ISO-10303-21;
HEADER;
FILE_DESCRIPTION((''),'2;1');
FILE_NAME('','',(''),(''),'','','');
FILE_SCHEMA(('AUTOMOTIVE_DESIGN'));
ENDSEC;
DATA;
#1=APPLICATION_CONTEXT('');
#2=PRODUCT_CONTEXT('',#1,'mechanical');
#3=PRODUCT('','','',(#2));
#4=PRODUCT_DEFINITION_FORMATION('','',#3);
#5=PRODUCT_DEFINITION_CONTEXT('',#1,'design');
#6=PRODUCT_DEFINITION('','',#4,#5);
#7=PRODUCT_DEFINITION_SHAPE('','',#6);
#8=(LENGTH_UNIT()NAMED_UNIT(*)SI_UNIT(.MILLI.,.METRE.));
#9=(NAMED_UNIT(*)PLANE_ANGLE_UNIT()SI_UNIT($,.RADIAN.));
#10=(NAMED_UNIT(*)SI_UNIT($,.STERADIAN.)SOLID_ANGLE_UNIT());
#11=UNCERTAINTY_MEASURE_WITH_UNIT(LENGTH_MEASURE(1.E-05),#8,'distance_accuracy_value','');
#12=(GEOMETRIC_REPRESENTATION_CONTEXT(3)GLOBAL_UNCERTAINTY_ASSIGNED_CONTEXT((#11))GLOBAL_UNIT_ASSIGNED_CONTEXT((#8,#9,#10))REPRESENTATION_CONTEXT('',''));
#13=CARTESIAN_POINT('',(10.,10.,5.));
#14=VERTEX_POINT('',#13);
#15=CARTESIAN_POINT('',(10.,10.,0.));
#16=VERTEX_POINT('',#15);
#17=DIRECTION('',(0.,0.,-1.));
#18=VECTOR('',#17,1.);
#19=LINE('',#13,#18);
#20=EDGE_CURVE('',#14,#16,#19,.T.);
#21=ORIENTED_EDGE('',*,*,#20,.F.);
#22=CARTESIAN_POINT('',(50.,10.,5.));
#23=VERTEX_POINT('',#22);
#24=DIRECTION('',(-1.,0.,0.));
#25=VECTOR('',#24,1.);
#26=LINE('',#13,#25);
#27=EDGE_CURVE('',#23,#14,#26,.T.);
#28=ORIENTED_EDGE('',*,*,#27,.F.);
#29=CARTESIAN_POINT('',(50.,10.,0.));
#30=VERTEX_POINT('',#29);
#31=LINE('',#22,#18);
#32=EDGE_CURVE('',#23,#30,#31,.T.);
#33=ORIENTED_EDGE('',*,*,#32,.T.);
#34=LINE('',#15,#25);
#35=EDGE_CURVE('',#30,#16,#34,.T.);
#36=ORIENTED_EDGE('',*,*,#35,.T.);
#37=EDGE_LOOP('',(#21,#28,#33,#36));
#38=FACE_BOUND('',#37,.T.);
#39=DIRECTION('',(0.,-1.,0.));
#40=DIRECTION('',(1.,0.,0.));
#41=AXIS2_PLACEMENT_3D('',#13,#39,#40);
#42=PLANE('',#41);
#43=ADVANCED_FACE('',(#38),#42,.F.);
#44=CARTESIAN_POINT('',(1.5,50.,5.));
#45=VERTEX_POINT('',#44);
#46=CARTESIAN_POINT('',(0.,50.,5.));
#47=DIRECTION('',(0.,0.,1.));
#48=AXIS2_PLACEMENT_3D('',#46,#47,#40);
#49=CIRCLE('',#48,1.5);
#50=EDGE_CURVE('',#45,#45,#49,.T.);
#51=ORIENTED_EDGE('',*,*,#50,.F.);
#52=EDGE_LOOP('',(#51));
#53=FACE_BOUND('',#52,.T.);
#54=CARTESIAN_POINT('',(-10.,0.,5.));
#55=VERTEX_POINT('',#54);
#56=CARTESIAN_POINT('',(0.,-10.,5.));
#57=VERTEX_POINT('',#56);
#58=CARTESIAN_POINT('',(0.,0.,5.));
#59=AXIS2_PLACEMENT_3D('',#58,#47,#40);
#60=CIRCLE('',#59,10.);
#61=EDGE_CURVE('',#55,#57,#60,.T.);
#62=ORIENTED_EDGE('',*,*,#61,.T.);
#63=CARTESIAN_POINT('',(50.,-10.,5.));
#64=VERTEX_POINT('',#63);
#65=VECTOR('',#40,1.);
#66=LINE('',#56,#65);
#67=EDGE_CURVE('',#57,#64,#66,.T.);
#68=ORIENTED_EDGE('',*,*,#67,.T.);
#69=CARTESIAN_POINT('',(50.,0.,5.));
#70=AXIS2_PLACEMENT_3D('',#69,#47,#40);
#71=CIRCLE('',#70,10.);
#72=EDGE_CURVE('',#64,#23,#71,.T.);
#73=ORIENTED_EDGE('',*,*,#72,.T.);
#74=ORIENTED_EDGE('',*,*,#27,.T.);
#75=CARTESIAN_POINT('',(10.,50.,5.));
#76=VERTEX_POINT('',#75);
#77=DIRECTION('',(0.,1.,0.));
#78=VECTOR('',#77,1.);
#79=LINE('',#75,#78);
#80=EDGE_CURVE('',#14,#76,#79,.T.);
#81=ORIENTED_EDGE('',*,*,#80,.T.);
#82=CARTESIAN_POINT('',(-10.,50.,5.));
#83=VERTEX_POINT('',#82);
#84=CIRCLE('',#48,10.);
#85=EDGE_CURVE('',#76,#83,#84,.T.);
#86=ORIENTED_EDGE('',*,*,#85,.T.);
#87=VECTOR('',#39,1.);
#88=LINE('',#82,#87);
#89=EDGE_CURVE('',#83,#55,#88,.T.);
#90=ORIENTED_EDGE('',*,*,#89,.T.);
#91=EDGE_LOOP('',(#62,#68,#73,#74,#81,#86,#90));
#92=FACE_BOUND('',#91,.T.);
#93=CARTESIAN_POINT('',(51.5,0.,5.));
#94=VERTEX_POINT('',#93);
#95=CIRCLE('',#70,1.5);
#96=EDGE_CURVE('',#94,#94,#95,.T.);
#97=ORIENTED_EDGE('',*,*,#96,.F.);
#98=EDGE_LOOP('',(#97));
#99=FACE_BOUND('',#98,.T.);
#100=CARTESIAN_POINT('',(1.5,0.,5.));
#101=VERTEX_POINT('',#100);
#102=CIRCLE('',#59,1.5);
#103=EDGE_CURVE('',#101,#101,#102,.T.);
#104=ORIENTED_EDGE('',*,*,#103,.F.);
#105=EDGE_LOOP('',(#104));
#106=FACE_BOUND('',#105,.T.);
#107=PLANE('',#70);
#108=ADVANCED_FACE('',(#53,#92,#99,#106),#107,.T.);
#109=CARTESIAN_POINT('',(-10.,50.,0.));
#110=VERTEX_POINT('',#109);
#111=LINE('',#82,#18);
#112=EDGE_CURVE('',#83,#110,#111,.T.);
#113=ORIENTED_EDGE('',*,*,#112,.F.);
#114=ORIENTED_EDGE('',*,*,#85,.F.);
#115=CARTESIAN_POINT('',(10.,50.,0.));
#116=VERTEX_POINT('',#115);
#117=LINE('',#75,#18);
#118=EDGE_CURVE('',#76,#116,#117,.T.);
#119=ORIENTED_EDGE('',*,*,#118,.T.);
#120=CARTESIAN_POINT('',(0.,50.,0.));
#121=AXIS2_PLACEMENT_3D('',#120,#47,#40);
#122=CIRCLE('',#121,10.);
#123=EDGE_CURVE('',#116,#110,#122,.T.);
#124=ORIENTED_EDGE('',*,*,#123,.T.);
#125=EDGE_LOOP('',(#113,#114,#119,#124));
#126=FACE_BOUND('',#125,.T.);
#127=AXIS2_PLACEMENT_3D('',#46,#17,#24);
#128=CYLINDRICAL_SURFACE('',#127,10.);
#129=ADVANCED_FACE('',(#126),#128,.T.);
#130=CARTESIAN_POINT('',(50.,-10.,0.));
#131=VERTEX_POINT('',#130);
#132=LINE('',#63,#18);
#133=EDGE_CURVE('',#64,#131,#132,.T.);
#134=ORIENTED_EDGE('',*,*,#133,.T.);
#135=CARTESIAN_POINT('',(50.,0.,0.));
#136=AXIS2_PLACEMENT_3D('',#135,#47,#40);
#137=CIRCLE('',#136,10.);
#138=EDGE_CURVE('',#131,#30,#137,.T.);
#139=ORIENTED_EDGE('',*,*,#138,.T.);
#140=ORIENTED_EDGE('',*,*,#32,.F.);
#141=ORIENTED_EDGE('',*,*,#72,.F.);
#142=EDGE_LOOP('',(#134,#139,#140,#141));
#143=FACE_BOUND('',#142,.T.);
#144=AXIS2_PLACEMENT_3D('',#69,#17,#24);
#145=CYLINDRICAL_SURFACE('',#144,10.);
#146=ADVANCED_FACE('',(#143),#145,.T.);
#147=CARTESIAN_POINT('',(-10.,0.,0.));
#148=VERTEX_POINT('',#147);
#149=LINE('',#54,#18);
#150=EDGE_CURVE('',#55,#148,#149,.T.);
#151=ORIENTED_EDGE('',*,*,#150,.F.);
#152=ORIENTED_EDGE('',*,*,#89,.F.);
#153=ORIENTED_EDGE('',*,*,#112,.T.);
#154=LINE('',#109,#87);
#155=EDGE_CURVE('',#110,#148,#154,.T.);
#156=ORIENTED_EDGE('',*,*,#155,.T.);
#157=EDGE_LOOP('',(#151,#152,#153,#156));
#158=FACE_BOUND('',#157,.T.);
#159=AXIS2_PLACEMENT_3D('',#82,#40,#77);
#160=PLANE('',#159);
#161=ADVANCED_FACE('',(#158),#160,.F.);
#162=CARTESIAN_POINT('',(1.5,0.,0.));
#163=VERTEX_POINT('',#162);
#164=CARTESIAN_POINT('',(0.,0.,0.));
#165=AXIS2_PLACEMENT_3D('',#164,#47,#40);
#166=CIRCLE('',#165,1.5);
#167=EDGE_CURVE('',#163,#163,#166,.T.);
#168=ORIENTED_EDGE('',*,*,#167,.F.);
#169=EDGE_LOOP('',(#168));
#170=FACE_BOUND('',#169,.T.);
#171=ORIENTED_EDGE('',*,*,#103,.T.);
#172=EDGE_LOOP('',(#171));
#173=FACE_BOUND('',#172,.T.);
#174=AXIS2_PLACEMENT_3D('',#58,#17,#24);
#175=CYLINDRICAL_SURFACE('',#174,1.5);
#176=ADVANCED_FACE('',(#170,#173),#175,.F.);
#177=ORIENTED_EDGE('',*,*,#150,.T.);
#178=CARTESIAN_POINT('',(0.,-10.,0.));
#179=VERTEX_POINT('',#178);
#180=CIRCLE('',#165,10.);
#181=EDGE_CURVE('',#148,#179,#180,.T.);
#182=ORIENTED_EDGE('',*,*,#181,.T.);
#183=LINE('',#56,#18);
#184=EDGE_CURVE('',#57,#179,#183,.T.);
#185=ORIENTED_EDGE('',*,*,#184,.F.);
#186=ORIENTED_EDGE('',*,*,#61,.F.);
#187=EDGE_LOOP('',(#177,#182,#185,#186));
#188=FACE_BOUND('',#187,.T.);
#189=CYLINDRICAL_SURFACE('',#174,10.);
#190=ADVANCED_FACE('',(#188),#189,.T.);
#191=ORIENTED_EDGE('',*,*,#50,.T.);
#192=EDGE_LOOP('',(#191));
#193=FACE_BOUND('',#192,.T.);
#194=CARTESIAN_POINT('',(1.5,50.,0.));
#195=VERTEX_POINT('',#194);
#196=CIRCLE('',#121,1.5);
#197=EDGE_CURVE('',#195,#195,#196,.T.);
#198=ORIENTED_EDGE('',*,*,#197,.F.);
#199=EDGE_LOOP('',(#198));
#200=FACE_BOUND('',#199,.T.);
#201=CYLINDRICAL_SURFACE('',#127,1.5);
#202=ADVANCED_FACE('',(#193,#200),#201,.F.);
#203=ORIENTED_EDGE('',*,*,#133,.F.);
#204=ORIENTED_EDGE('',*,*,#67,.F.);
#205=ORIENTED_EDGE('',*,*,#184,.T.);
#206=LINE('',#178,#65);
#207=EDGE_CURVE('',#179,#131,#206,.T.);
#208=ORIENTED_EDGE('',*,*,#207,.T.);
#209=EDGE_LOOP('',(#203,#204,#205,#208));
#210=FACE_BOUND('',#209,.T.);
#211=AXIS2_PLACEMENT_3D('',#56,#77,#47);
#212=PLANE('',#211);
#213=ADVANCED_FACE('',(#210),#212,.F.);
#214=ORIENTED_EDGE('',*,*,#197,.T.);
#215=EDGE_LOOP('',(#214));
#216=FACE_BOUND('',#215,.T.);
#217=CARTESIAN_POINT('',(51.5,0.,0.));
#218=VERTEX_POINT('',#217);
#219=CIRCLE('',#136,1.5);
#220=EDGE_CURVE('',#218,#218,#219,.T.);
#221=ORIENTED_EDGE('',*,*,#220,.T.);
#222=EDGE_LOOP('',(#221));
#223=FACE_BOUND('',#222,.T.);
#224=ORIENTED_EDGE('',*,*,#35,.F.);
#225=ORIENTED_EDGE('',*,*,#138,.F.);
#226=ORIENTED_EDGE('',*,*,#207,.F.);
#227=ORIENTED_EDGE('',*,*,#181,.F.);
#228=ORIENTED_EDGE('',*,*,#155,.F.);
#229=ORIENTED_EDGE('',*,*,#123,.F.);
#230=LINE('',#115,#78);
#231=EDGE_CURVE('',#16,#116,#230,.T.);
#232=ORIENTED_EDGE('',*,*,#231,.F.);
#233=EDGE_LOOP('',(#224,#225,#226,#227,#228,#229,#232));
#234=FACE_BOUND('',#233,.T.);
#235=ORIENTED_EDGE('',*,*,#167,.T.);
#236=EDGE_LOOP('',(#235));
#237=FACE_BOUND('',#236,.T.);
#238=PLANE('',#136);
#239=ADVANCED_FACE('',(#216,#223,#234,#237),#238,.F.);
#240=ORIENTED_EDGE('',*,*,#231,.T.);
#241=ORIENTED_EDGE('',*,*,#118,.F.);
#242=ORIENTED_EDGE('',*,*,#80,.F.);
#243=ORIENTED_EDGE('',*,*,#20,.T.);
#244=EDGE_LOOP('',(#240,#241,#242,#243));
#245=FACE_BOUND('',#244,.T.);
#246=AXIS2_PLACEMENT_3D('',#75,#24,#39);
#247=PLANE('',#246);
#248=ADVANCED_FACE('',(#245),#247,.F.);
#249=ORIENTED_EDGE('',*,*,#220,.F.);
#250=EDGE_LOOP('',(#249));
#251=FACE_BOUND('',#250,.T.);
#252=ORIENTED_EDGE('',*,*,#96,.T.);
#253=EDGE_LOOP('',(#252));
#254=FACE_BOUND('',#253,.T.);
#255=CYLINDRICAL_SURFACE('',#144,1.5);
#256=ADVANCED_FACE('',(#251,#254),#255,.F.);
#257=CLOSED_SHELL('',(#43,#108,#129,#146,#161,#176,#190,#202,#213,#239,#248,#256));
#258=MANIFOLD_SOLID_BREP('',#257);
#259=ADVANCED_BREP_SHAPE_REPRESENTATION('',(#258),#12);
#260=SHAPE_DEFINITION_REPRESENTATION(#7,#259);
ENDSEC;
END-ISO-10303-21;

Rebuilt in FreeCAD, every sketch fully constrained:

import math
import FreeCAD as App
import Part
import Sketcher

V = App.Vector

doc = App.newDocument("Part")
body = doc.addObject("PartDesign::Body", "Body")

sketch1 = body.newObject("Sketcher::SketchObject", "Sketch")
sketch1.AttachmentSupport = (doc.getObject("XY_Plane"), [""])
sketch1.MapMode = "FlatFace"
sketch1.addGeometry([
    Part.LineSegment(V(-10, 50, 0), V(-10, 0, 0)),
    Part.ArcOfCircle(Part.Circle(V(0, 0, 0), V(0, 0, 1), 10), math.radians(180), math.radians(270)),
    Part.LineSegment(V(0, -10, 0), V(50, -10, 0)),
    Part.ArcOfCircle(Part.Circle(V(50, 0, 0), V(0, 0, 1), 10), math.radians(-90), math.radians(90)),
    Part.LineSegment(V(50, 10, 0), V(10, 10, 0)),
    Part.LineSegment(V(10, 10, 0), V(10, 50, 0)),
    Part.ArcOfCircle(Part.Circle(V(0, 50, 0), V(0, 0, 1), 10), math.radians(0), math.radians(180)),
    Part.Circle(V(0, 0, 0), V(0, 0, 1), 1.5),
    Part.Circle(V(50, 0, 0), V(0, 0, 1), 1.5),
    Part.Circle(V(0, 50, 0), V(0, 0, 1), 1.5),
], False)
sketch1.addConstraint([
    Sketcher.Constraint("Tangent", 0, 2, 1, 1),
    Sketcher.Constraint("Tangent", 1, 2, 2, 1),
    Sketcher.Constraint("Tangent", 2, 2, 3, 1),
    Sketcher.Constraint("Tangent", 3, 2, 4, 1),
    Sketcher.Constraint("Coincident", 4, 2, 5, 1),
    Sketcher.Constraint("Tangent", 5, 2, 6, 1),
    Sketcher.Constraint("Tangent", 6, 2, 0, 1),
    Sketcher.Constraint("Vertical", 0),
    Sketcher.Constraint("Horizontal", 2),
    Sketcher.Constraint("Horizontal", 4),
    Sketcher.Constraint("Vertical", 5),
    Sketcher.Constraint("Coincident", 1, 3, -1, 1),
    Sketcher.Constraint("Coincident", 7, 3, -1, 1),
    Sketcher.Constraint("Coincident", 8, 3, 3, 3),
    Sketcher.Constraint("Coincident", 9, 3, 6, 3),
    Sketcher.Constraint("Equal", 1, 3),
    Sketcher.Constraint("Equal", 3, 6),
    Sketcher.Constraint("Equal", 7, 8),
    Sketcher.Constraint("Equal", 8, 9),
    Sketcher.Constraint("Equal", 2, 0),
    Sketcher.Constraint("Diameter", 7, 3.0),
    Sketcher.Constraint("Radius", 1, 10.0),
    Sketcher.Constraint("DistanceX", 2, 1, 2, 2, 50.0),
])
pad1 = body.newObject("PartDesign::Pad", "Pad")
pad1.Profile = sketch1
pad1.Length = 5

doc.recompute()
